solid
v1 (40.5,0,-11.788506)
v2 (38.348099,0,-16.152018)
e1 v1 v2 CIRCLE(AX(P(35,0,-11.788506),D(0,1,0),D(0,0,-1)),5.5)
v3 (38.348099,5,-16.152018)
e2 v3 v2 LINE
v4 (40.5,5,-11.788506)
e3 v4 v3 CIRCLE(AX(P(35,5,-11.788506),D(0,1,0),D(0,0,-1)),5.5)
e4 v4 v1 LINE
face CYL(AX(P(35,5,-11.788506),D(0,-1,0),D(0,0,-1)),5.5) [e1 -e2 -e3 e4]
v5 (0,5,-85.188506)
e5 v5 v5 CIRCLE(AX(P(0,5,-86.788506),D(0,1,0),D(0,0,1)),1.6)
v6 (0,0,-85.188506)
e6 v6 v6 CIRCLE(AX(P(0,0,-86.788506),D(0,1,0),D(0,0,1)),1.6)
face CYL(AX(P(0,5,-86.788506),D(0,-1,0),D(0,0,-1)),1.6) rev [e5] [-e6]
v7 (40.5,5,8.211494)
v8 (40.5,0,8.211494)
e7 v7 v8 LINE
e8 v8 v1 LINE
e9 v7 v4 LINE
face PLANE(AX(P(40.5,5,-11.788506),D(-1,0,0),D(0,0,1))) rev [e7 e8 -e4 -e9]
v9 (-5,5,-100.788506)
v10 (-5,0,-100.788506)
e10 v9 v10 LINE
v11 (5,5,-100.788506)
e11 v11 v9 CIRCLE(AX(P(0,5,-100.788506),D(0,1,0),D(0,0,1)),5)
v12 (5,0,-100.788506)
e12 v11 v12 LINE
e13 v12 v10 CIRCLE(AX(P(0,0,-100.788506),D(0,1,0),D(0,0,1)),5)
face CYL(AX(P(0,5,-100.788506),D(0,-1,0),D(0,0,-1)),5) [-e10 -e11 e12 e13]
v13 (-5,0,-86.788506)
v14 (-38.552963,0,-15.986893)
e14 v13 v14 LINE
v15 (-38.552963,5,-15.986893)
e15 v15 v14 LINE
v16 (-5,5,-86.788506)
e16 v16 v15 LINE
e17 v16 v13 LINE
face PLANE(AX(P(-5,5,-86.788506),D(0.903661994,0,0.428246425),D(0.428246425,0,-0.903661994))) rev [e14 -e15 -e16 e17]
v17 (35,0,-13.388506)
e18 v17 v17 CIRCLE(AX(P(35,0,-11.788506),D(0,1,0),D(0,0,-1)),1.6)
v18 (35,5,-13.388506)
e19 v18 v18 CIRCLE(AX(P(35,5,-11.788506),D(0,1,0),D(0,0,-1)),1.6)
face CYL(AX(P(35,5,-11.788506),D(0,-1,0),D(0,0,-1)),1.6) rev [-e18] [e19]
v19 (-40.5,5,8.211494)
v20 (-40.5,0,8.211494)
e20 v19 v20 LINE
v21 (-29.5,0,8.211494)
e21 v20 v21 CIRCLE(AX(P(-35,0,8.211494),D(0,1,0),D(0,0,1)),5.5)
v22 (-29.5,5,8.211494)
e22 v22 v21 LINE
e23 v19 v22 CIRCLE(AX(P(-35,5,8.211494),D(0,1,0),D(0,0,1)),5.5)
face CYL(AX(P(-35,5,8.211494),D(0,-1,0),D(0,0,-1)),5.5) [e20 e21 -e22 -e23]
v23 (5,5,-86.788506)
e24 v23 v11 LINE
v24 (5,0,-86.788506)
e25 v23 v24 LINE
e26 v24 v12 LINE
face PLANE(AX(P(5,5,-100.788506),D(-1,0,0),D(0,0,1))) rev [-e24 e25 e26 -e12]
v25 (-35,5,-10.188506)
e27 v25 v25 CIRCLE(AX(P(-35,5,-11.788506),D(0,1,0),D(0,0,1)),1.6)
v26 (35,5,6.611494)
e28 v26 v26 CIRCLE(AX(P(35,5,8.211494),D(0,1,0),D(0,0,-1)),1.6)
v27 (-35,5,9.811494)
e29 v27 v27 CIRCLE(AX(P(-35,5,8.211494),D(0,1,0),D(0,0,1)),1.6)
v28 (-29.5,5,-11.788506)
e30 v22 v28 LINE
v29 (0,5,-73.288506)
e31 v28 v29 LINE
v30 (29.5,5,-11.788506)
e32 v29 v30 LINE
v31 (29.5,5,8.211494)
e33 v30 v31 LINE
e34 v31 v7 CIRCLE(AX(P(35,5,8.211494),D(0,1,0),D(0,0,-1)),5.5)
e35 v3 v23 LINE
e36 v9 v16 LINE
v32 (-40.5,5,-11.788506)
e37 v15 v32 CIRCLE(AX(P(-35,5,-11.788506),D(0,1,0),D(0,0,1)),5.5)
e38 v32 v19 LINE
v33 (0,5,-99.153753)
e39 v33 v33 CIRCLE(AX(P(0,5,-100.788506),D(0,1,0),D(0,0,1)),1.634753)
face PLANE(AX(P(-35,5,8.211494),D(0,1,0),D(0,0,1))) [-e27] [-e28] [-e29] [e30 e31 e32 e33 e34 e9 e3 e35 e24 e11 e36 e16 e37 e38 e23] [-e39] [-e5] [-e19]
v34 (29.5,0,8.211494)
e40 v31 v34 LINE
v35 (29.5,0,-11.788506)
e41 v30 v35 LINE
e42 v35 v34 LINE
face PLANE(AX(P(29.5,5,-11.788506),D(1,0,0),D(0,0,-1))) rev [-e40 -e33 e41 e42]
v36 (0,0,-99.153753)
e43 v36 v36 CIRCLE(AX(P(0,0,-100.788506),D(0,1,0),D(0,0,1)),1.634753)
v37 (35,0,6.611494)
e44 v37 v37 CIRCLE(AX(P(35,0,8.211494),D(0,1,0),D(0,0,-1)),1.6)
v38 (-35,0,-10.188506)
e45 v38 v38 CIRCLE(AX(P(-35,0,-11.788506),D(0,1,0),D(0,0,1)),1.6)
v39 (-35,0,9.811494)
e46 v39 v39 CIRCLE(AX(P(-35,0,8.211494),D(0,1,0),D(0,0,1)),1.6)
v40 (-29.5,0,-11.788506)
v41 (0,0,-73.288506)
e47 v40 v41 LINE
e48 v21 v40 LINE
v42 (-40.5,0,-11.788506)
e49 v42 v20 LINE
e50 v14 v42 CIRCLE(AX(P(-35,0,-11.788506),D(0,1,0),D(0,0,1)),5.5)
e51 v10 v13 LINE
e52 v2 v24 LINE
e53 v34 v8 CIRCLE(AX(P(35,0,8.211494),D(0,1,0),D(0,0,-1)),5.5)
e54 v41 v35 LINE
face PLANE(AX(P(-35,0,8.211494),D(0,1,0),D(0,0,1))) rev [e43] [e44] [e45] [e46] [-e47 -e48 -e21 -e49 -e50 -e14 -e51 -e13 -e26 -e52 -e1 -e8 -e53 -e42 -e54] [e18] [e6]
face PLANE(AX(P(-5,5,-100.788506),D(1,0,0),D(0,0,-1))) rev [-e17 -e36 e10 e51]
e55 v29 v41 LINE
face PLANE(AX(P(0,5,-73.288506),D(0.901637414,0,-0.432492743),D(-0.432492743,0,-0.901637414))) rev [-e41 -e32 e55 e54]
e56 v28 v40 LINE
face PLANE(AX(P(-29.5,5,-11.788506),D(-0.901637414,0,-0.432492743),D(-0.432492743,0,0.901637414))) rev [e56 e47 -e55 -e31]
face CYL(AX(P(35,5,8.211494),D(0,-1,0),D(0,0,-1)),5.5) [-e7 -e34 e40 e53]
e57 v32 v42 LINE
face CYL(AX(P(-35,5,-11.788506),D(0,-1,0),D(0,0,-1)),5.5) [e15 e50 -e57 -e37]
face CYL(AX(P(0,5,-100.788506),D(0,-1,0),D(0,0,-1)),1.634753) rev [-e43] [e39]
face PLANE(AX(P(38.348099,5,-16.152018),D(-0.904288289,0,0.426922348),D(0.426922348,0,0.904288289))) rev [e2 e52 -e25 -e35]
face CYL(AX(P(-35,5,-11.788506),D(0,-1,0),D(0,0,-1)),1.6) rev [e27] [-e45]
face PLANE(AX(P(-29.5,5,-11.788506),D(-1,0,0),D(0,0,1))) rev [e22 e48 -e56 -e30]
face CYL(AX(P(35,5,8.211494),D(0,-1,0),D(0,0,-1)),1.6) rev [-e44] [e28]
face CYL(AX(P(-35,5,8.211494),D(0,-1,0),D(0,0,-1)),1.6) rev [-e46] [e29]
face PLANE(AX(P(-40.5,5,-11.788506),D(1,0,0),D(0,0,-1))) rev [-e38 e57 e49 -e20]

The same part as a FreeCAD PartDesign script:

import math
import FreeCAD as App
import Part
import Sketcher
from FreeCAD import Vector
Q = App.Units.Quantity

doc = App.newDocument("Part")
params = doc.addObject("Spreadsheet::Sheet", "Params")
for row, (alias, value) in enumerate([
    ("sketch1_radius", "5 mm"),
    ("sketch1_diameter", "3.2 mm"),
    ("sketch1_radius2", "5.5 mm"),
    ("sketch1_height", "20 mm"),
    ("sketch1_height2", "14 mm"),
    ("pad1_length", "5 mm"),
], start=1):
    params.set(f"A{row}", alias)
    params.set(f"B{row}", "=" + value)
    params.setAlias(f"B{row}", alias)

body = doc.addObject("PartDesign::Body", "Body")

sketch1 = doc.addObject("Sketcher::SketchObject", "Sketch")
body.addObject(sketch1)
sketch1.AttachmentSupport = (doc.XZ_Plane, [""])
sketch1.MapMode = "FlatFace"
sketch1.addGeometry(Part.LineSegment(Vector(-29.5, 8.2, 0), Vector(-29.5, -11.8, 0)), False)
sketch1.addGeometry(Part.LineSegment(Vector(-29.5, -11.8, 0), Vector(0, -73.3, 0)), False)
sketch1.addGeometry(Part.LineSegment(Vector(0, -73.3, 0), Vector(29.5, -11.8, 0)), False)
sketch1.addGeometry(Part.LineSegment(Vector(29.5, -11.8, 0), Vector(29.5, 8.2, 0)), False)
sketch1.addGeometry(Part.ArcOfCircle(Part.Circle(Vector(35, 8.2, 0), Vector(0, 0, 1), 5.5), math.radians(0), math.radians(180)), False)
sketch1.addGeometry(Part.LineSegment(Vector(40.5, 8.2, 0), Vector(40.5, -11.8, 0)), False)
sketch1.addGeometry(Part.ArcOfCircle(Part.Circle(Vector(35, -11.8, 0), Vector(0, 0, 1), 5.5), math.radians(-53), math.radians(0)), False)
sketch1.addGeometry(Part.LineSegment(Vector(38.3, -16.2, 0), Vector(5, -86.8, 0)), False)
sketch1.addGeometry(Part.LineSegment(Vector(5, -86.8, 0), Vector(5, -100.8, 0)), False)
sketch1.addGeometry(Part.ArcOfCircle(Part.Circle(Vector(0, -100.8, 0), Vector(0, 0, 1), 5), math.radians(180), math.radians(360)), False)
sketch1.addGeometry(Part.LineSegment(Vector(-5, -100.8, 0), Vector(-5, -86.8, 0)), False)
sketch1.addGeometry(Part.LineSegment(Vector(-5, -86.8, 0), Vector(-38.6, -16, 0)), False)
sketch1.addGeometry(Part.ArcOfCircle(Part.Circle(Vector(-35, -11.8, 0), Vector(0, 0, 1), 5.5), math.radians(-180), math.radians(-130)), False)
sketch1.addGeometry(Part.LineSegment(Vector(-40.5, -11.8, 0), Vector(-40.5, 8.2, 0)), False)
sketch1.addGeometry(Part.ArcOfCircle(Part.Circle(Vector(-35, 8.2, 0), Vector(0, 0, 1), 5.5), math.radians(0), math.radians(180)), False)
sketch1.addGeometry(Part.Circle(Vector(35, 8.2, 0), Vector(0, 0, 1), 1.6), False)
sketch1.addGeometry(Part.Circle(Vector(35, -11.8, 0), Vector(0, 0, 1), 1.6), False)
sketch1.addGeometry(Part.Circle(Vector(-35, 8.2, 0), Vector(0, 0, 1), 1.6), False)
sketch1.addGeometry(Part.Circle(Vector(-35, -11.8, 0), Vector(0, 0, 1), 1.6), False)
sketch1.addGeometry(Part.Circle(Vector(0, -86.8, 0), Vector(0, 0, 1), 1.6), False)
sketch1.addGeometry(Part.Circle(Vector(0, -100.8, 0), Vector(0, 0, 1), 1.6), False)
sketch1.addConstraint(Sketcher.Constraint("Coincident", 0, 2, 1, 1))
sketch1.addConstraint(Sketcher.Constraint("Coincident", 1, 2, 2, 1))
sketch1.addConstraint(Sketcher.Constraint("Coincident", 2, 2, 3, 1))
sketch1.addConstraint(Sketcher.Constraint("Tangent", 3, 2, 4, 2))
sketch1.addConstraint(Sketcher.Constraint("Tangent", 4, 1, 5, 1))
sketch1.addConstraint(Sketcher.Constraint("Tangent", 5, 2, 6, 2))
sketch1.addConstraint(Sketcher.Constraint("Coincident", 6, 1, 7, 1))
sketch1.addConstraint(Sketcher.Constraint("Coincident", 7, 2, 8, 1))
sketch1.addConstraint(Sketcher.Constraint("Tangent", 8, 2, 9, 2))
sketch1.addConstraint(Sketcher.Constraint("Tangent", 9, 1, 10, 1))
sketch1.addConstraint(Sketcher.Constraint("Coincident", 10, 2, 11, 1))
sketch1.addConstraint(Sketcher.Constraint("Coincident", 11, 2, 12, 2))
sketch1.addConstraint(Sketcher.Constraint("Tangent", 12, 1, 13, 1))
sketch1.addConstraint(Sketcher.Constraint("Tangent", 13, 2, 14, 2))
sketch1.addConstraint(Sketcher.Constraint("Tangent", 14, 1, 0, 1))
sketch1.addConstraint(Sketcher.Constraint("Vertical", 0))
sketch1.addConstraint(Sketcher.Constraint("Vertical", 3))
sketch1.addConstraint(Sketcher.Constraint("Vertical", 5))
sketch1.addConstraint(Sketcher.Constraint("Vertical", 8))
sketch1.addConstraint(Sketcher.Constraint("Vertical", 10))
sketch1.addConstraint(Sketcher.Constraint("Vertical", 13))
sketch1.addConstraint(Sketcher.Constraint("Coincident", 15, 3, 4, 3))
sketch1.addConstraint(Sketcher.Constraint("Coincident", 16, 3, 6, 3))
sketch1.addConstraint(Sketcher.Constraint("Coincident", 17, 3, 14, 3))
sketch1.addConstraint(Sketcher.Constraint("Coincident", 18, 3, 12, 3))
sketch1.addConstraint(Sketcher.Constraint("Coincident", 20, 3, 9, 3))
sketch1.addConstraint(Sketcher.Constraint("Equal", 4, 6))
sketch1.addConstraint(Sketcher.Constraint("Equal", 6, 12))
sketch1.addConstraint(Sketcher.Constraint("Equal", 12, 14))
sketch1.addConstraint(Sketcher.Constraint("Equal", 15, 16))
sketch1.addConstraint(Sketcher.Constraint("Equal", 16, 17))
sketch1.addConstraint(Sketcher.Constraint("Equal", 17, 18))
sketch1.addConstraint(Sketcher.Constraint("Equal", 18, 19))
sketch1.addConstraint(Sketcher.Constraint("Symmetric", 6, 3, 12, 3, -2))
sketch1.addConstraint(Sketcher.Constraint("Symmetric", 7, 2, 10, 2, -2))
sketch1.addConstraint(Sketcher.Constraint("PointOnObject", 19, 3, -2))
sketch1.addConstraint(Sketcher.Constraint("PointOnObject", 1, 2, -2))
sketch1.addConstraint(Sketcher.Constraint("Horizontal", 4, 3, 14, 3))
sketch1.addConstraint(Sketcher.Constraint("Horizontal", 18, 3, 0, 2))
sketch1.addConstraint(Sketcher.Constraint("Horizontal", 0, 2, 2, 2))
sketch1.addConstraint(Sketcher.Constraint("Horizontal", 19, 3, 7, 2))
sketch1.addConstraint(Sketcher.Constraint("Radius", 9, Q("5 mm")))
sketch1.addConstraint(Sketcher.Constraint("Diameter", 15, Q("3.2 mm")))
sketch1.addConstraint(Sketcher.Constraint("Radius", 4, Q("5.5 mm")))
sketch1.addConstraint(Sketcher.Constraint("DistanceY", 0, 2, 0, 1, Q("20 mm")))
sketch1.addConstraint(Sketcher.Constraint("DistanceY", 8, 2, 8, 1, Q("14 mm")))
sketch1.addConstraint(Sketcher.Constraint("DistanceX", -1, 1, 4, 3, Q("35 mm")))
sketch1.addConstraint(Sketcher.Constraint("DistanceY", 9, 3, 6, 3, Q("89 mm")))
sketch1.addConstraint(Sketcher.Constraint("DistanceY", 19, 3, 1, 2, Q("13.5 mm")))
sketch1.addConstraint(Sketcher.Constraint("Diameter", 20, Q("3.269506 mm")))
sketch1.addConstraint(Sketcher.Constraint("Distance", 7, Q("78.112798 mm")))
sketch1.addConstraint(Sketcher.Constraint("Distance", 11, Q("78.349664 mm")))
sketch1.addConstraint(Sketcher.Constraint("DistanceY", -1, 1, 4, 3, Q("8.211494 mm")))
sketch1.setExpression("Constraints[41]", "Params.sketch1_radius")
sketch1.setExpression("Constraints[42]", "Params.sketch1_diameter")
sketch1.setExpression("Constraints[43]", "Params.sketch1_radius2")
sketch1.setExpression("Constraints[44]", "Params.sketch1_height")
sketch1.setExpression("Constraints[45]", "Params.sketch1_height2")
pad1 = doc.addObject("PartDesign::Pad", "Pad")
body.addObject(pad1)
pad1.Profile = sketch1
pad1.setExpression("Length", "Params.pad1_length")
pad1.Reversed = True

doc.recompute()
